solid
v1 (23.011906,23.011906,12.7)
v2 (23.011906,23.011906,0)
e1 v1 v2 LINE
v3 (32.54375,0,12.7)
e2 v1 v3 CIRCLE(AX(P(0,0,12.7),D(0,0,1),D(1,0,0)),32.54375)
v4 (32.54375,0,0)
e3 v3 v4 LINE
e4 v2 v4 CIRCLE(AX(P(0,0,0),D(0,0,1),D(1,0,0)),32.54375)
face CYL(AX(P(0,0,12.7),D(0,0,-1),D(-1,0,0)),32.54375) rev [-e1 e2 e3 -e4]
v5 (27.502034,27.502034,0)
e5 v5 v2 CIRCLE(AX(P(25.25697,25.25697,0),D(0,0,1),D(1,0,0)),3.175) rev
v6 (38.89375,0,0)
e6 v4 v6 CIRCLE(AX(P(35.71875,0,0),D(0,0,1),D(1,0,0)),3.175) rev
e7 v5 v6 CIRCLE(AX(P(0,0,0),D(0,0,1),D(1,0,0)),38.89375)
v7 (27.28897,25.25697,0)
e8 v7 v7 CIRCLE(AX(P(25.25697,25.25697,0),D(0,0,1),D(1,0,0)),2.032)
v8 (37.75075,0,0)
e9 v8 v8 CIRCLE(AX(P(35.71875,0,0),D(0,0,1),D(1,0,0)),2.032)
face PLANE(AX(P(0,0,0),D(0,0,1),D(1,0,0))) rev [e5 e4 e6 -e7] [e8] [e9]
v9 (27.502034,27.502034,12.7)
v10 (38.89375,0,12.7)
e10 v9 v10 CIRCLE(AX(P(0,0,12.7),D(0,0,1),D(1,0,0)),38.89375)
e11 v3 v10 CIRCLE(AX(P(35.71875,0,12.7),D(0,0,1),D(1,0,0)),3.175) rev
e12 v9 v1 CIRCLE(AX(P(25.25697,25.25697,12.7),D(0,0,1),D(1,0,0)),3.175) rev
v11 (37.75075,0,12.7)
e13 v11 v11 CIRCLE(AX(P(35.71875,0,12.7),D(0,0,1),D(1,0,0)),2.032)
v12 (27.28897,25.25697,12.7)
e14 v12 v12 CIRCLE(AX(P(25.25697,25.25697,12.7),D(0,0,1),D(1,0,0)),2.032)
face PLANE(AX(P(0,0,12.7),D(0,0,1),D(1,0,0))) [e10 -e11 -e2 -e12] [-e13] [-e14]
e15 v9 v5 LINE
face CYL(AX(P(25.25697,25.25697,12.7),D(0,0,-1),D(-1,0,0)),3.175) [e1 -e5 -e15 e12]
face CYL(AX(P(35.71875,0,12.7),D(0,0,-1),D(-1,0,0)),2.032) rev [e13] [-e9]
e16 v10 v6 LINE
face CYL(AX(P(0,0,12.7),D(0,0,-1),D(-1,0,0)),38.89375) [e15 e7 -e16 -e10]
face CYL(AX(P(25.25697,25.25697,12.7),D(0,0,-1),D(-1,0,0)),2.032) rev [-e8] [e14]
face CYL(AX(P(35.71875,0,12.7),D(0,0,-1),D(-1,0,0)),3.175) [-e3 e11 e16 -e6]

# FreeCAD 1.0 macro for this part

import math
import FreeCAD as App
import Part
import Sketcher
from FreeCAD import Vector
Q = App.Units.Quantity

doc = App.newDocument("Part")
body = doc.addObject("PartDesign::Body", "Body")

sketch1 = body.newObject("Sketcher::SketchObject", "Sketch")
sketch1.AttachmentSupport = (doc.getObject("XY_Plane"), [""])
sketch1.MapMode = "FlatFace"
sketch1.addGeometry([
    Part.ArcOfCircle(Part.Circle(Vector(25.3, 25.3, 0), Vector(0, 0, 1), 3.2), math.radians(-135), math.radians(45)),
    Part.ArcOfCircle(Part.Circle(Vector(0, 0, 0), Vector(0, 0, 1), 38.9), math.radians(45), math.radians(360)),
    Part.ArcOfCircle(Part.Circle(Vector(35.7, 0, 0), Vector(0, 0, 1), 3.2), math.radians(0), math.radians(180)),
    Part.ArcOfCircle(Part.Circle(Vector(0, 0, 0), Vector(0, 0, 1), 32.5), math.radians(45), math.radians(360)),
    Part.Circle(Vector(35.7, 0, 0), Vector(0, 0, 1), 2),
    Part.Circle(Vector(25.3, 25.3, 0), Vector(0, 0, 1), 2),
], False)
sketch1.addConstraint([
    Sketcher.Constraint("Tangent", 0, 2, 1, 1),
    Sketcher.Constraint("Tangent", 1, 2, 2, 1),
    Sketcher.Constraint("Tangent", 2, 2, 3, 2),
    Sketcher.Constraint("Tangent", 3, 1, 0, 1),
    Sketcher.Constraint("Coincident", 1, 3, -1, 1),
    Sketcher.Constraint("Coincident", 3, 3, -1, 1),
    Sketcher.Constraint("Coincident", 4, 3, 2, 3),
    Sketcher.Constraint("Coincident", 5, 3, 0, 3),
    Sketcher.Constraint("Equal", 4, 5),
    Sketcher.Constraint("PointOnObject", 2, 3, -1),
    Sketcher.Constraint("Diameter", 4, Q("0.16 in")),
    Sketcher.Constraint("Radius", 0, Q("0.125 in")),
    Sketcher.Constraint("Radius", 1, Q("1.53125 in")),
    Sketcher.Constraint("DistanceX", -1, 1, 0, 3, 25.25697),
])
pad1 = body.newObject("PartDesign::Pad", "Pad")
pad1.Profile = sketch1
pad1.Length = Q("0.5 in")

doc.recompute()
